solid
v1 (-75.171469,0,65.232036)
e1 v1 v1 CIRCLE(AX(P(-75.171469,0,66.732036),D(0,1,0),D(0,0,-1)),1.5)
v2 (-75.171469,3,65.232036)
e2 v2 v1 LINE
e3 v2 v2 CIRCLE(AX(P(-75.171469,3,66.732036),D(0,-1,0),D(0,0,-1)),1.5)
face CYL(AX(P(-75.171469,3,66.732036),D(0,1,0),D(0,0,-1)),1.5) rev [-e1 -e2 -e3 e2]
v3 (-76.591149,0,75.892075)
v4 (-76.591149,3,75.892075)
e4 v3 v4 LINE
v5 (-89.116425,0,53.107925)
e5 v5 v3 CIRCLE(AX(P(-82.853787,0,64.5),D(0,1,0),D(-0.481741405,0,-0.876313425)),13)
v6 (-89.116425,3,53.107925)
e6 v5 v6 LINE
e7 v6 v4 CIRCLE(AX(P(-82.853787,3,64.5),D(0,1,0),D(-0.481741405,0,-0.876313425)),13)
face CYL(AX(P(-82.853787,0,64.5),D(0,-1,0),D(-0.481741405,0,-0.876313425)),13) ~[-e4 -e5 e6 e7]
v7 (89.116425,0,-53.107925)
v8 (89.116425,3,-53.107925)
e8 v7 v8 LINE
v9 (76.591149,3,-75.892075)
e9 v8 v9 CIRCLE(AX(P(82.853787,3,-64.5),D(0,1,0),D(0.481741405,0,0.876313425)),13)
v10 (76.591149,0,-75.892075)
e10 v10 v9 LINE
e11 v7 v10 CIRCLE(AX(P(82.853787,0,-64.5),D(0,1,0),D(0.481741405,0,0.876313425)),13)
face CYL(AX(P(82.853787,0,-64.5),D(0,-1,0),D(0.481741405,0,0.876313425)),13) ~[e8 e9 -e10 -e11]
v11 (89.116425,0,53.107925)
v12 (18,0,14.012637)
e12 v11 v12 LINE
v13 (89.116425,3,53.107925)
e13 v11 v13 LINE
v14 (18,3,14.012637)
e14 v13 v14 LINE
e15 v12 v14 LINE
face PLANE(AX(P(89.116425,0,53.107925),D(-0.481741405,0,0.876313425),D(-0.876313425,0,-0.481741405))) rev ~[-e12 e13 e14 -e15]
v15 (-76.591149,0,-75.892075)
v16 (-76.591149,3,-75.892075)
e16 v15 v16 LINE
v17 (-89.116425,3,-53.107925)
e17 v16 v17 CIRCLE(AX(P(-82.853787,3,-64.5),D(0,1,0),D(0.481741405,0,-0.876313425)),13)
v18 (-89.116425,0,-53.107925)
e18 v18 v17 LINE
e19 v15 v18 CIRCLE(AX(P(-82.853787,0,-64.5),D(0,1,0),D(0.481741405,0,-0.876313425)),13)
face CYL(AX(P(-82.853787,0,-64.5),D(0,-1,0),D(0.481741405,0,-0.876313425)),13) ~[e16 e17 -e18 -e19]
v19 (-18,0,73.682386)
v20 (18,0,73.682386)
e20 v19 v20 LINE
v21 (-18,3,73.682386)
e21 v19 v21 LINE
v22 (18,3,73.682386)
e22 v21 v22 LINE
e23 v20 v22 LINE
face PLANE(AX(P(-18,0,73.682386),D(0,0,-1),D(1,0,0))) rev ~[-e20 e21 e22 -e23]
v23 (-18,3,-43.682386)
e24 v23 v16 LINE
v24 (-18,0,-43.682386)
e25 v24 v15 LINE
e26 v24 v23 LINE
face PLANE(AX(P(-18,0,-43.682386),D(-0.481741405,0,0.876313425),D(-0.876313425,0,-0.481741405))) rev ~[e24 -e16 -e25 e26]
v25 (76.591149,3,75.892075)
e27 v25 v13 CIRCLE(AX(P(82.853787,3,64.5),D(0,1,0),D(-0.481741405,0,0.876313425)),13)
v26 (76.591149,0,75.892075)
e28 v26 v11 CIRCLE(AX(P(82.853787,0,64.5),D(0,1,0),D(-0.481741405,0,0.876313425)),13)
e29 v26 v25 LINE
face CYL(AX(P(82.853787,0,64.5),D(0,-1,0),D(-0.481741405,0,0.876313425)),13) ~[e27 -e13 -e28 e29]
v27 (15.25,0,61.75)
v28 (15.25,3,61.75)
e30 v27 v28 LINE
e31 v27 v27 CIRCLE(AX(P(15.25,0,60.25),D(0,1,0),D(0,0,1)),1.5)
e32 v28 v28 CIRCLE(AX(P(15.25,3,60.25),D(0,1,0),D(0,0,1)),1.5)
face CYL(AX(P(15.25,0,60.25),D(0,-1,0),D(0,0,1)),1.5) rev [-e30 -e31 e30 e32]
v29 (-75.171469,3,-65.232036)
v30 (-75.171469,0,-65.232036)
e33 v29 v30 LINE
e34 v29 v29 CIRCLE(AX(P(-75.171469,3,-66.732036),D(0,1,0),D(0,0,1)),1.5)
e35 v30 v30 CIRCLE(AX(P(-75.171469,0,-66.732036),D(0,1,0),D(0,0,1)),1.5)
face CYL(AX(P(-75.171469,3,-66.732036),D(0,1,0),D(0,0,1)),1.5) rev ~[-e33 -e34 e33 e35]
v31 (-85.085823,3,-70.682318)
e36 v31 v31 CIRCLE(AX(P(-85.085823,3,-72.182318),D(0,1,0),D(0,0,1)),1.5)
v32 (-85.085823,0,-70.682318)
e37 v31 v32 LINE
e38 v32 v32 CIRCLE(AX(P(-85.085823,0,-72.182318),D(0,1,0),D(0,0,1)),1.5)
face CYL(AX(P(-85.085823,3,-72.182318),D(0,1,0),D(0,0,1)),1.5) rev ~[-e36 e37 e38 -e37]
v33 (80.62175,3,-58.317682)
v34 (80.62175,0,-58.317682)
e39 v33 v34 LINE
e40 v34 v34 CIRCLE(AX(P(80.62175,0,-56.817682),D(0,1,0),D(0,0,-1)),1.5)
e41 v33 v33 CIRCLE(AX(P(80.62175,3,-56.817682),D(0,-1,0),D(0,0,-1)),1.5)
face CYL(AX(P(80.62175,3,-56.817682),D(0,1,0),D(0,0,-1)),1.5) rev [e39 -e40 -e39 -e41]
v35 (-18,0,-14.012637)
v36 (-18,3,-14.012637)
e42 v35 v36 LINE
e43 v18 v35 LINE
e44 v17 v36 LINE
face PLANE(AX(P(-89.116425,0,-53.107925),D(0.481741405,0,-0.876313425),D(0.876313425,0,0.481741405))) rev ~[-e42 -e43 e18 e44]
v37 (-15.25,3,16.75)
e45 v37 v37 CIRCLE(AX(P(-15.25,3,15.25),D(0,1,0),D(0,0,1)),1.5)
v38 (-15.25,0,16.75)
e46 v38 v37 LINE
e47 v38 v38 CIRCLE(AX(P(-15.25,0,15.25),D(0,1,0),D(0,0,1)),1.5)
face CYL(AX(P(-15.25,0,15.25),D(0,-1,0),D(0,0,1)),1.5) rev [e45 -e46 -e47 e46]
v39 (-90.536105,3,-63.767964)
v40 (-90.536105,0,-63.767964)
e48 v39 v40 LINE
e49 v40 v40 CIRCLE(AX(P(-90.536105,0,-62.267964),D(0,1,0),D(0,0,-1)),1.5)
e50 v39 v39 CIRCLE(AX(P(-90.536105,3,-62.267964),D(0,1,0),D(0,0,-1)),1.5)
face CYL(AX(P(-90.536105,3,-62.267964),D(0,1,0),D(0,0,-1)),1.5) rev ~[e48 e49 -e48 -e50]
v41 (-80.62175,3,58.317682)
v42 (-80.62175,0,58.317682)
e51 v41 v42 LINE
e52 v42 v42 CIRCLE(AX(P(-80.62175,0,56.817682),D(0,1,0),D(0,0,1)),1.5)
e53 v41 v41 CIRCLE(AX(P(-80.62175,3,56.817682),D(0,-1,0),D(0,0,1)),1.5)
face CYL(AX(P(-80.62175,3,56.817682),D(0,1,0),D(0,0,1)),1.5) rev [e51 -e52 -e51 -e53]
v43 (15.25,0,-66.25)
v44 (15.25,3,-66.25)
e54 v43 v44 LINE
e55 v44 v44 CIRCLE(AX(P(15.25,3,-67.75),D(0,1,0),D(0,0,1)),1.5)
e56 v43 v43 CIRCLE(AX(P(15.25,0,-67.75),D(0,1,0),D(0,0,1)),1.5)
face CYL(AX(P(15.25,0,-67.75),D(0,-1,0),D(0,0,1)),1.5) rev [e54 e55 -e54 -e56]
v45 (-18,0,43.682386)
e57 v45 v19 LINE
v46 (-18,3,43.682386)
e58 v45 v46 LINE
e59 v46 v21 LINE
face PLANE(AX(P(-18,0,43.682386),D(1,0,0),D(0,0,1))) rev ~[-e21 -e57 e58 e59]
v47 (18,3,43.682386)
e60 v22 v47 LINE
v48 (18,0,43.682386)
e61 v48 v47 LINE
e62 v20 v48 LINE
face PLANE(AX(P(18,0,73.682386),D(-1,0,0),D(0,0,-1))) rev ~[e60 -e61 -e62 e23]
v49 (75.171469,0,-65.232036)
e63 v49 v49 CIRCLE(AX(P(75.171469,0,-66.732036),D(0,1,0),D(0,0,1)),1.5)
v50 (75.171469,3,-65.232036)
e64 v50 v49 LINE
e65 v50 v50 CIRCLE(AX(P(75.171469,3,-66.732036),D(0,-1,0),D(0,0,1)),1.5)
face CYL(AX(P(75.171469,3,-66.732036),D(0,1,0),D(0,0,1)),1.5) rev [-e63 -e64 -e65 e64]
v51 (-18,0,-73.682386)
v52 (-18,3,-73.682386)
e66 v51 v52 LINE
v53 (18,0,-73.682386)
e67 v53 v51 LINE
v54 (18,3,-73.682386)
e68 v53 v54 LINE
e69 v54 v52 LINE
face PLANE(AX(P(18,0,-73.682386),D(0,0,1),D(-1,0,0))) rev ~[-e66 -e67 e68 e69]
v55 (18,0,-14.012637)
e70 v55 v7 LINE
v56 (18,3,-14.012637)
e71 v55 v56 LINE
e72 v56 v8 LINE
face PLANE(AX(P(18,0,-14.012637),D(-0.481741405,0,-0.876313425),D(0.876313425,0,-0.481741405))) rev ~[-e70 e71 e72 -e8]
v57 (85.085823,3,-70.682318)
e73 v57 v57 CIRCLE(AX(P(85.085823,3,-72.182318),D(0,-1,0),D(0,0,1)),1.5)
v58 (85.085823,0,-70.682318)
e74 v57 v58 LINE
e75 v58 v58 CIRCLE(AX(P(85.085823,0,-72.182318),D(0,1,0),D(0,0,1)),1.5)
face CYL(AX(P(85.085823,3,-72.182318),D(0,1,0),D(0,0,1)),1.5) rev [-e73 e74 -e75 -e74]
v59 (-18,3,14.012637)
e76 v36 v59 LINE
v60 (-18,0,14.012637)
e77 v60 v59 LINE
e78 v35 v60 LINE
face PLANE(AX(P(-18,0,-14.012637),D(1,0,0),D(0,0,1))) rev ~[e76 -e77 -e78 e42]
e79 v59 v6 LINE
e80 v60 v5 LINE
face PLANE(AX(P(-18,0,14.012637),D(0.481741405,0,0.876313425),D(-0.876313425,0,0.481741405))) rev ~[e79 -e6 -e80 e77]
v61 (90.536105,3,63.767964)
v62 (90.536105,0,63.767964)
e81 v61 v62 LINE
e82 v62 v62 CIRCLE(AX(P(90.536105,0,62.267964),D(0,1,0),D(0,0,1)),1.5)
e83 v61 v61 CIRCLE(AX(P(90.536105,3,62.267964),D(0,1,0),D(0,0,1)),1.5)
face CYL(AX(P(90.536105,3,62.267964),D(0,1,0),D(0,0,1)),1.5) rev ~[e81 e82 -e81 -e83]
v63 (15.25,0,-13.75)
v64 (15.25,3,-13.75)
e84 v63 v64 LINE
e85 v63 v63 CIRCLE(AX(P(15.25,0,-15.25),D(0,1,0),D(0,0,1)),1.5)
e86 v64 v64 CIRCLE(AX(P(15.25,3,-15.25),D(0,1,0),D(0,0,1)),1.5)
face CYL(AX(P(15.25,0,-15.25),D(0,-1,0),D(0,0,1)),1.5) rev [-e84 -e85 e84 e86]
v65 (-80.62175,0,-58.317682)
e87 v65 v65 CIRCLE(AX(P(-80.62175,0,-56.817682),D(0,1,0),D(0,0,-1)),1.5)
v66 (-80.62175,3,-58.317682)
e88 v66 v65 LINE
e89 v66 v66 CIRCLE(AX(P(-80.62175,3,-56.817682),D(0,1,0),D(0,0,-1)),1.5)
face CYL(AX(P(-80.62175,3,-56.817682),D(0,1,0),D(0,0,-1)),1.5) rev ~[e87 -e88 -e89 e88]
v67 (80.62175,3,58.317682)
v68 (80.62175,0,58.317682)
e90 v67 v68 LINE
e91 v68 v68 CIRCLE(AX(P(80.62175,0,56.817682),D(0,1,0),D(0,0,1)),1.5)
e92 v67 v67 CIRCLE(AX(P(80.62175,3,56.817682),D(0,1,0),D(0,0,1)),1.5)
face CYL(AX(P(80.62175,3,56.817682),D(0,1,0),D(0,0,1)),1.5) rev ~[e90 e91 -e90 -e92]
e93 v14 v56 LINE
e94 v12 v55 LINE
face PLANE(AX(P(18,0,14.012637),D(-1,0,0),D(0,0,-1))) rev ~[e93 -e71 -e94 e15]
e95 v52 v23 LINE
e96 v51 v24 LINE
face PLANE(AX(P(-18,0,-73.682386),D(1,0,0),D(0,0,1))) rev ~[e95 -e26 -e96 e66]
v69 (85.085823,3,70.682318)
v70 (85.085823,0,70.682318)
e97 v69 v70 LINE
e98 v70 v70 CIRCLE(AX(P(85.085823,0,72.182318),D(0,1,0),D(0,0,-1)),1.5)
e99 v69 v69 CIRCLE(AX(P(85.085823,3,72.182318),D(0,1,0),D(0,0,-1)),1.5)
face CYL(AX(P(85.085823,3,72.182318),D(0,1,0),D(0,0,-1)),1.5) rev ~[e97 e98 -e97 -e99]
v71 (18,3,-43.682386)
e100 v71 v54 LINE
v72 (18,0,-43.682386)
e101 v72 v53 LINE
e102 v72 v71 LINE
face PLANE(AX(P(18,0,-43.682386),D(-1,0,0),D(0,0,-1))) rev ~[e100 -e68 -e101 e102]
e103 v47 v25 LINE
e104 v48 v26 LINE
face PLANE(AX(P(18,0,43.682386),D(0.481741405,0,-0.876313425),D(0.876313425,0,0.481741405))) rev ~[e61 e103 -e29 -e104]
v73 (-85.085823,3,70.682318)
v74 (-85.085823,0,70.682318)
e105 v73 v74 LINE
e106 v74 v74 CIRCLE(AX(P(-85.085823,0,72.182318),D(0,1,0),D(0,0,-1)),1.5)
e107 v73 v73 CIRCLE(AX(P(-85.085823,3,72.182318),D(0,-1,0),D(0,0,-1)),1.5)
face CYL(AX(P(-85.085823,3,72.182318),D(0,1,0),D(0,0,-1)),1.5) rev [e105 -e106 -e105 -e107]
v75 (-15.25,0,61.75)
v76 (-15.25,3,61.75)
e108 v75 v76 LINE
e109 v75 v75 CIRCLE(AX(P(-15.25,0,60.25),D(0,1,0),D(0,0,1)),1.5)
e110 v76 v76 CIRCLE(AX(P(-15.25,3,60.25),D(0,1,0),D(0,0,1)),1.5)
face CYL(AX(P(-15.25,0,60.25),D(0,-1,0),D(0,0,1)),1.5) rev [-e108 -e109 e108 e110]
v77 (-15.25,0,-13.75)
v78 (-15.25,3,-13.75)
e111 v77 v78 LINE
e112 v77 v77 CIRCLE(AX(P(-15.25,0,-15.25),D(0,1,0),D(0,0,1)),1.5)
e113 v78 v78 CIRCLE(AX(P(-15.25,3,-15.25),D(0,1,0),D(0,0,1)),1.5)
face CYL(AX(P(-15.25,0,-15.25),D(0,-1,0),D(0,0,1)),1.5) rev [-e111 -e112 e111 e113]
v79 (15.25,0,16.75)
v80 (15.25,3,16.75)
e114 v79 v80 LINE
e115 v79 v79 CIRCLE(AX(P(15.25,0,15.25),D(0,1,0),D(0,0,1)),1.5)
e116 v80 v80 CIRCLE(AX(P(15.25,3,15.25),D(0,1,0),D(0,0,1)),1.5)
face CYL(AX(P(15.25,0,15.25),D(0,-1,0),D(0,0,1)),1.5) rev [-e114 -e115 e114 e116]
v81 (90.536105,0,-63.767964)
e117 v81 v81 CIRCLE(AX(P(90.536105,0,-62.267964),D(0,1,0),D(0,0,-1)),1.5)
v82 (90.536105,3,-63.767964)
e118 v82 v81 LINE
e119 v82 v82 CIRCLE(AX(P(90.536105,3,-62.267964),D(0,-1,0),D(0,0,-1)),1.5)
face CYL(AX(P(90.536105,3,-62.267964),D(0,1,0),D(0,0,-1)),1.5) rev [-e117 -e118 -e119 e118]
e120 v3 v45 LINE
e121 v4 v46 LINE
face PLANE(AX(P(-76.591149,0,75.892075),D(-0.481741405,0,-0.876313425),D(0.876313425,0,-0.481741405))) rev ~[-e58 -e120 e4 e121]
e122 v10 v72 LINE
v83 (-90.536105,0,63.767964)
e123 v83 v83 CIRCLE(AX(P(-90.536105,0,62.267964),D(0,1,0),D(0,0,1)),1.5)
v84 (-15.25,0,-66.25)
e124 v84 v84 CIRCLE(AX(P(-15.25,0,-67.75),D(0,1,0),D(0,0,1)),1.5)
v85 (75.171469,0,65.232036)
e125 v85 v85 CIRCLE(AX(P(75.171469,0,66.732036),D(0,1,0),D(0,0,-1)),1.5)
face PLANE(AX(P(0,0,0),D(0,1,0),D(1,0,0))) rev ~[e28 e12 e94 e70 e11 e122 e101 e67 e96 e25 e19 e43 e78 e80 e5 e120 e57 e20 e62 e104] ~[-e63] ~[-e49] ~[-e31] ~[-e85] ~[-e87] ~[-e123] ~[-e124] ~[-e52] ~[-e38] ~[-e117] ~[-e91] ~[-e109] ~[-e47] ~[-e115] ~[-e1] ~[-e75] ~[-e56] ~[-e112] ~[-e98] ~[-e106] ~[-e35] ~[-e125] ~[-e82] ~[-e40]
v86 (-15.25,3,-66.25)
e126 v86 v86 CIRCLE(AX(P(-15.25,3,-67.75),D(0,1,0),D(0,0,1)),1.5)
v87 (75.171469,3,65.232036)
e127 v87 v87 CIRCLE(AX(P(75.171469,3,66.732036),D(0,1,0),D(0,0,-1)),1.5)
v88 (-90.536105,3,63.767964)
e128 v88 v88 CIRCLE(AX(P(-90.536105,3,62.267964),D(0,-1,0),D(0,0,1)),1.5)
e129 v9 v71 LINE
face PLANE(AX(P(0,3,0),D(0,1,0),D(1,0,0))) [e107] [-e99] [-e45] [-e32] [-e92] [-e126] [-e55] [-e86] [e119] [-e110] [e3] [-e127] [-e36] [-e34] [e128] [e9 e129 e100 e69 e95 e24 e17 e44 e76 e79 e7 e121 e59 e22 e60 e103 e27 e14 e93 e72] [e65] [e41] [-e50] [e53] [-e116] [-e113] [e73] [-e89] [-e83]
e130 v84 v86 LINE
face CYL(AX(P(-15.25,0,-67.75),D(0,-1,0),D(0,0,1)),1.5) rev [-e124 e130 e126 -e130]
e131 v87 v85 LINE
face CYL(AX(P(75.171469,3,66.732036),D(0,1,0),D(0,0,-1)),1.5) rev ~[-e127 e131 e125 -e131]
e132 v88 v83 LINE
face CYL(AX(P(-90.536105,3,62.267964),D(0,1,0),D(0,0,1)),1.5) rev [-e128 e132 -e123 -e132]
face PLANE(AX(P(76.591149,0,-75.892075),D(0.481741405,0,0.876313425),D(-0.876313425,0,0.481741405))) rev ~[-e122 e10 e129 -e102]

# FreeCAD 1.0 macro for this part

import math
import FreeCAD as App
import Part
import Sketcher

V = App.Vector

doc = App.newDocument("Part")
body = doc.addObject("PartDesign::Body", "Body")

sketch1 = doc.addObject("Sketcher::SketchObject", "Sketch")
body.addObject(sketch1)
sketch1.AttachmentSupport = (doc.XZ_Plane, [""])
sketch1.MapMode = "FlatFace"
sketch1.addGeometry([
    Part.LineSegment(V(-89.1, -53.1, 0), V(-18, -14, 0)),
    Part.LineSegment(V(-18, -14, 0), V(-18, 14, 0)),
    Part.LineSegment(V(-18, 14, 0), V(-89.1, 53.1, 0)),
    Part.ArcOfCircle(Part.Circle(V(-82.9, 64.5, 0), V(0, 0, 1), 13), math.radians(61), math.radians(241)),
    Part.LineSegment(V(-76.6, 75.9, 0), V(-18, 43.7, 0)),
    Part.LineSegment(V(-18, 43.7, 0), V(-18, 73.7, 0)),
    Part.LineSegment(V(-18, 73.7, 0), V(18, 73.7, 0)),
    Part.LineSegment(V(18, 73.7, 0), V(18, 43.7, 0)),
    Part.LineSegment(V(18, 43.7, 0), V(76.6, 75.9, 0)),
    Part.ArcOfCircle(Part.Circle(V(82.9, 64.5, 0), V(0, 0, 1), 13), math.radians(-61), math.radians(119)),
    Part.LineSegment(V(89.1, 53.1, 0), V(18, 14, 0)),
    Part.LineSegment(V(18, 14, 0), V(18, -14, 0)),
    Part.LineSegment(V(18, -14, 0), V(89.1, -53.1, 0)),
    Part.ArcOfCircle(Part.Circle(V(82.9, -64.5, 0), V(0, 0, 1), 13), math.radians(-119), math.radians(61)),
    Part.LineSegment(V(76.6, -75.9, 0), V(18, -43.7, 0)),
    Part.LineSegment(V(18, -43.7, 0), V(18, -73.7, 0)),
    Part.LineSegment(V(18, -73.7, 0), V(-18, -73.7, 0)),
    Part.LineSegment(V(-18, -73.7, 0), V(-18, -43.7, 0)),
    Part.LineSegment(V(-18, -43.7, 0), V(-76.6, -75.9, 0)),
    Part.ArcOfCircle(Part.Circle(V(-82.9, -64.5, 0), V(0, 0, 1), 13), math.radians(119), math.radians(299)),
    Part.Circle(V(-15.2, 60.2, 0), V(0, 0, 1), 1.5),
    Part.Circle(V(-15.2, 15.2, 0), V(0, 0, 1), 1.5),
    Part.Circle(V(15.2, 60.2, 0), V(0, 0, 1), 1.5),
    Part.Circle(V(15.2, 15.2, 0), V(0, 0, 1), 1.5),
    Part.Circle(V(-15.2, -15.2, 0), V(0, 0, 1), 1.5),
    Part.Circle(V(-15.2, -67.8, 0), V(0, 0, 1), 1.5),
    Part.Circle(V(15.2, -15.2, 0), V(0, 0, 1), 1.5),
    Part.Circle(V(15.2, -67.8, 0), V(0, 0, 1), 1.5),
], False)
sketch1.addConstraint([
    Sketcher.Constraint("Coincident", 0, 2, 1, 1),
    Sketcher.Constraint("Coincident", 1, 2, 2, 1),
    Sketcher.Constraint("Tangent", 2, 2, 3, 2),
    Sketcher.Constraint("Tangent", 3, 1, 4, 1),
    Sketcher.Constraint("Coincident", 4, 2, 5, 1),
    Sketcher.Constraint("Coincident", 5, 2, 6, 1),
    Sketcher.Constraint("Coincident", 6, 2, 7, 1),
    Sketcher.Constraint("Coincident", 7, 2, 8, 1),
    Sketcher.Constraint("Tangent", 8, 2, 9, 2),
    Sketcher.Constraint("Tangent", 9, 1, 10, 1),
    Sketcher.Constraint("Coincident", 10, 2, 11, 1),
    Sketcher.Constraint("Coincident", 11, 2, 12, 1),
    Sketcher.Constraint("Tangent", 12, 2, 13, 2),
    Sketcher.Constraint("Tangent", 13, 1, 14, 1),
    Sketcher.Constraint("Coincident", 14, 2, 15, 1),
    Sketcher.Constraint("Coincident", 15, 2, 16, 1),
    Sketcher.Constraint("Coincident", 16, 2, 17, 1),
    Sketcher.Constraint("Coincident", 17, 2, 18, 1),
    Sketcher.Constraint("Tangent", 18, 2, 19, 2),
    Sketcher.Constraint("Tangent", 19, 1, 0, 1),
    Sketcher.Constraint("Vertical", 1),
    Sketcher.Constraint("Vertical", 5),
    Sketcher.Constraint("Horizontal", 6),
    Sketcher.Constraint("Vertical", 7),
    Sketcher.Constraint("Vertical", 11),
    Sketcher.Constraint("Vertical", 15),
    Sketcher.Constraint("Horizontal", 16),
    Sketcher.Constraint("Vertical", 17),
    Sketcher.Constraint("Equal", 3, 9),
    Sketcher.Constraint("Equal", 9, 13),
    Sketcher.Constraint("Equal", 13, 19),
    Sketcher.Constraint("Equal", 20, 21),
    Sketcher.Constraint("Equal", 21, 22),
    Sketcher.Constraint("Equal", 22, 23),
    Sketcher.Constraint("Equal", 23, 24),
    Sketcher.Constraint("Equal", 24, 25),
    Sketcher.Constraint("Equal", 25, 26),
    Sketcher.Constraint("Equal", 26, 27),
    Sketcher.Constraint("Symmetric", 3, 3, 13, 3, -1, 1),
    Sketcher.Constraint("Symmetric", 9, 3, 19, 3, -1, 1),
    Sketcher.Constraint("Symmetric", 23, 3, 24, 3, -1, 1),
    Sketcher.Constraint("Symmetric", 21, 3, 26, 3, -1, 1),
    Sketcher.Constraint("Symmetric", 0, 2, 10, 2, -1, 1),
    Sketcher.Constraint("Symmetric", 4, 2, 14, 2, -1, 1),
    Sketcher.Constraint("Symmetric", 6, 2, 16, 2, -1, 1),
    Sketcher.Constraint("Symmetric", 3, 3, 9, 3, -2),
    Sketcher.Constraint("Symmetric", 20, 3, 22, 3, -2),
    Sketcher.Constraint("Symmetric", 21, 3, 23, 3, -2),
    Sketcher.Constraint("Symmetric", 25, 3, 27, 3, -2),
    Sketcher.Constraint("Symmetric", 4, 2, 7, 2, -2),
    Sketcher.Constraint("Parallel", 2, 4),
    Sketcher.Constraint("Parallel", 0, 8),
    Sketcher.Constraint("Parallel", 4, 12),
    Sketcher.Constraint("Parallel", 10, 18),
    Sketcher.Constraint("Vertical", 20, 3, 21, 3),
    Sketcher.Constraint("Vertical", 24, 3, 25, 3),
    Sketcher.Constraint("Vertical", 1, 2, 4, 2),
    Sketcher.Constraint("Diameter", 20, 3.0),
    Sketcher.Constraint("Radius", 3, 13.0),
    Sketcher.Constraint("DistanceX", 6, 1, 6, 2, 36.0),
    Sketcher.Constraint("DistanceY", 5, 1, 5, 2, 30.0),
    Sketcher.Constraint("DistanceY", 13, 3, 9, 3, 129.0),
    Sketcher.Constraint("DistanceY", 21, 3, 20, 3, 45.0),
    Sketcher.Constraint("DistanceY", 25, 3, 21, 3, 83.0),
    Sketcher.Constraint("DistanceX", 20, 3, 22, 3, 30.5),
    Sketcher.Constraint("DistanceY", 24, 3, 21, 3, 30.5),
    Sketcher.Constraint("Distance", 4, 66.860951),
    Sketcher.Constraint("DistanceY", 1, 1, 1, 2, 28.025273),
])
pad1 = doc.addObject("PartDesign::Pad", "Pad")
body.addObject(pad1)
pad1.Profile = sketch1
pad1.Length = 3
pad1.Reversed = True

sketch2 = doc.addObject("Sketcher::SketchObject", "Sketch001")
body.addObject(sketch2)
sketch2.AttachmentSupport = (doc.XZ_Plane, [""])
sketch2.MapMode = "FlatFace"
sketch2.AttachmentOffset = App.Placement(V(0, 0, -3), App.Rotation())
sketch2.addGeometry([
    Part.Circle(V(-85.1, -72.2, 0), V(0, 0, 1), 1.5),
    Part.Circle(V(-75.2, -66.7, 0), V(0, 0, 1), 1.5),
    Part.Circle(V(-80.6, -56.8, 0), V(0, 0, 1), 1.5),
    Part.Circle(V(-90.5, -62.3, 0), V(0, 0, 1), 1.5),
], False)
sketch2.addConstraint([
    Sketcher.Constraint("Equal", 0, 1),
    Sketcher.Constraint("Equal", 1, 2),
    Sketcher.Constraint("Equal", 2, 3),
    Sketcher.Constraint("Diameter", 0, 3.0),
    Sketcher.Constraint("DistanceY", 0, 3, -1, 1, 72.182318),
    Sketcher.Constraint("DistanceX", 1, 3, -1, 1, 75.171469),
    Sketcher.Constraint("DistanceX", 2, 3, -1, 1, 80.62175),
    Sketcher.Constraint("DistanceY", 2, 3, -1, 1, 56.817682),
    Sketcher.Constraint("DistanceY", 0, 3, 1, 3, 5.450282),
    Sketcher.Constraint("DistanceY", 3, 3, 2, 3, 5.450282),
    Sketcher.Constraint("DistanceX", 3, 3, 0, 3, 5.450282),
    Sketcher.Constraint("DistanceX", 0, 3, -1, 1, 85.085823),
])
pocket1 = doc.addObject("PartDesign::Pocket", "Pocket")
body.addObject(pocket1)
pocket1.Profile = sketch2
pocket1.Type = "ThroughAll"
pocket1.Reversed = True
doc.recompute()

mirrored = doc.addObject("PartDesign::Mirrored", "Mirrored")
body.addObject(mirrored)
mirrored.Originals = [pocket1]
mirrored.MirrorPlane = (doc.XY_Plane, [""])
body.Tip = mirrored
doc.recompute()

mirrored2 = doc.addObject("PartDesign::Mirrored", "Mirrored001")
body.addObject(mirrored2)
mirrored2.Originals = [pocket1]
mirrored2.MirrorPlane = (doc.YZ_Plane, [""])
body.Tip = mirrored2

sketch3 = doc.addObject("Sketcher::SketchObject", "Sketch002")
body.addObject(sketch3)
sketch3.AttachmentSupport = (doc.XZ_Plane, [""])
sketch3.MapMode = "FlatFace"
sketch3.AttachmentOffset = App.Placement(V(0, 0, -3), App.Rotation())
sketch3.addGeometry([
    Part.Circle(V(85.1, 72.2, 0), V(0, 0, 1), 1.5),
    Part.Circle(V(75.2, 66.7, 0), V(0, 0, 1), 1.5),
    Part.Circle(V(80.6, 56.8, 0), V(0, 0, 1), 1.5),
    Part.Circle(V(90.5, 62.3, 0), V(0, 0, 1), 1.5),
], False)
sketch3.addConstraint([
    Sketcher.Constraint("Equal", 0, 1),
    Sketcher.Constraint("Equal", 1, 2),
    Sketcher.Constraint("Equal", 2, 3),
    Sketcher.Constraint("Diameter", 0, 3.0),
    Sketcher.Constraint("DistanceY", -1, 1, 0, 3, 72.182318),
    Sketcher.Constraint("DistanceX", -1, 1, 1, 3, 75.171469),
    Sketcher.Constraint("DistanceX", -1, 1, 2, 3, 80.62175),
    Sketcher.Constraint("DistanceY", -1, 1, 2, 3, 56.817682),
    Sketcher.Constraint("DistanceY", 1, 3, 0, 3, 5.450282),
    Sketcher.Constraint("DistanceY", 2, 3, 3, 3, 5.450282),
    Sketcher.Constraint("DistanceX", 0, 3, 3, 3, 5.450282),
    Sketcher.Constraint("DistanceX", -1, 1, 0, 3, 85.085823),
])
pocket2 = doc.addObject("PartDesign::Pocket", "Pocket001")
body.addObject(pocket2)
pocket2.Profile = sketch3
pocket2.Type = "ThroughAll"
pocket2.Reversed = True

doc.recompute()
